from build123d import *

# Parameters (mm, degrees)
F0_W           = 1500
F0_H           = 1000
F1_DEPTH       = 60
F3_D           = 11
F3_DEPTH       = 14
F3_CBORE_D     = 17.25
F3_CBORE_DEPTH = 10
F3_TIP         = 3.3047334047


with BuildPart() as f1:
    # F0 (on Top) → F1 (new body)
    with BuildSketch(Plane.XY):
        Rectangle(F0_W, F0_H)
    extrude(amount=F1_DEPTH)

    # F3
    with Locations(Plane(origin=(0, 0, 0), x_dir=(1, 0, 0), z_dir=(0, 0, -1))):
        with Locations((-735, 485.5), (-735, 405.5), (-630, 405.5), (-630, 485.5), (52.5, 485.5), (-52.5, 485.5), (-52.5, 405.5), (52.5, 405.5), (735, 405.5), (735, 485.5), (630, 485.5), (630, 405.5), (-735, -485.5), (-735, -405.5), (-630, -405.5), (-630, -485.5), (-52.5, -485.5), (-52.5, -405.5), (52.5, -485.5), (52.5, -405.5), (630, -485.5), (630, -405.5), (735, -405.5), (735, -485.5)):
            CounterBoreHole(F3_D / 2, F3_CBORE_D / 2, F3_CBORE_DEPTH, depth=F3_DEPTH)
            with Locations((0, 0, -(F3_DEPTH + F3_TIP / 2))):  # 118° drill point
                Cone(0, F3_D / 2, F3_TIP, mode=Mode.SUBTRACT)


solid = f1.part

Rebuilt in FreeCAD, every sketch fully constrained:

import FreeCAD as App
import Part
import Sketcher

V = App.Vector
Q = App.Units.Quantity

doc = App.newDocument("Part")
params = doc.addObject("Spreadsheet::Sheet", "Params")
for row, (alias, value) in enumerate([
    ("sketch1_width", "1500 mm"),
    ("sketch1_height", "1000 mm"),
    ("pad1_length", "60 mm"),
    ("sketch2_diameter", "11 mm"),
    ("hole_diameter", "11 mm"),
    ("hole_depth", "14 mm"),
    ("hole_cbore_diameter", "17.25 mm"),
    ("hole_cbore_depth", "10 mm"),
], start=1):
    params.set(f"A{row}", alias)
    params.set(f"B{row}", "=" + value)
    params.setAlias(f"B{row}", alias)

body = doc.addObject("PartDesign::Body", "Body")

sketch1 = body.newObject("Sketcher::SketchObject", "Sketch")
sketch1.AttachmentSupport = (doc.getObject("XY_Plane"), [""])
sketch1.MapMode = "FlatFace"
sketch1.addGeometry(Part.LineSegment(V(-750, 500, 0), V(-750, -500, 0)), False)
sketch1.addGeometry(Part.LineSegment(V(-750, -500, 0), V(750, -500, 0)), False)
sketch1.addGeometry(Part.LineSegment(V(750, -500, 0), V(750, 500, 0)), False)
sketch1.addGeometry(Part.LineSegment(V(750, 500, 0), V(-750, 500, 0)), False)
sketch1.addConstraint(Sketcher.Constraint("Coincident", 0, 2, 1, 1))
sketch1.addConstraint(Sketcher.Constraint("Coincident", 1, 2, 2, 1))
sketch1.addConstraint(Sketcher.Constraint("Coincident", 2, 2, 3, 1))
sketch1.addConstraint(Sketcher.Constraint("Coincident", 3, 2, 0, 1))
sketch1.addConstraint(Sketcher.Constraint("Vertical", 0))
sketch1.addConstraint(Sketcher.Constraint("Horizontal", 1))
sketch1.addConstraint(Sketcher.Constraint("Vertical", 2))
sketch1.addConstraint(Sketcher.Constraint("Horizontal", 3))
sketch1.addConstraint(Sketcher.Constraint("Symmetric", 0, 2, 2, 2, -1, 1))
sketch1.addConstraint(Sketcher.Constraint("DistanceX", 1, 1, 1, 2, Q("1500 mm")))
sketch1.addConstraint(Sketcher.Constraint("DistanceY", 0, 2, 0, 1, Q("1000 mm")))
sketch1.setExpression("Constraints[9]", "Params.sketch1_width")
sketch1.setExpression("Constraints[10]", "Params.sketch1_height")
pad1 = body.newObject("PartDesign::Pad", "Pad")
pad1.Profile = sketch1
pad1.setExpression("Length", "Params.pad1_length")

sketch2 = body.newObject("Sketcher::SketchObject", "Sketch001")
sketch2.AttachmentSupport = (doc.getObject("XY_Plane"), [""])
sketch2.MapMode = "FlatFace"
sketch2.addGeometry(Part.Circle(V(-735, -485.5, 0), V(0, 0, 1), 5.5), False)
sketch2.addGeometry(Part.Circle(V(-735, -405.5, 0), V(0, 0, 1), 5.5), False)
sketch2.addGeometry(Part.Circle(V(-630, -405.5, 0), V(0, 0, 1), 5.5), False)
sketch2.addGeometry(Part.Circle(V(-630, -485.5, 0), V(0, 0, 1), 5.5), False)
sketch2.addGeometry(Part.Circle(V(52.5, -485.5, 0), V(0, 0, 1), 5.5), False)
sketch2.addGeometry(Part.Circle(V(-52.5, -485.5, 0), V(0, 0, 1), 5.5), False)
sketch2.addGeometry(Part.Circle(V(-52.5, -405.5, 0), V(0, 0, 1), 5.5), False)
sketch2.addGeometry(Part.Circle(V(52.5, -405.5, 0), V(0, 0, 1), 5.5), False)
sketch2.addGeometry(Part.Circle(V(735, -405.5, 0), V(0, 0, 1), 5.5), False)
sketch2.addGeometry(Part.Circle(V(735, -485.5, 0), V(0, 0, 1), 5.5), False)
sketch2.addGeometry(Part.Circle(V(630, -485.5, 0), V(0, 0, 1), 5.5), False)
sketch2.addGeometry(Part.Circle(V(630, -405.5, 0), V(0, 0, 1), 5.5), False)
sketch2.addGeometry(Part.Circle(V(-735, 485.5, 0), V(0, 0, 1), 5.5), False)
sketch2.addGeometry(Part.Circle(V(-735, 405.5, 0), V(0, 0, 1), 5.5), False)
sketch2.addGeometry(Part.Circle(V(-630, 405.5, 0), V(0, 0, 1), 5.5), False)
sketch2.addGeometry(Part.Circle(V(-630, 485.5, 0), V(0, 0, 1), 5.5), False)
sketch2.addGeometry(Part.Circle(V(-52.5, 485.5, 0), V(0, 0, 1), 5.5), False)
sketch2.addGeometry(Part.Circle(V(-52.5, 405.5, 0), V(0, 0, 1), 5.5), False)
sketch2.addGeometry(Part.Circle(V(52.5, 485.5, 0), V(0, 0, 1), 5.5), False)
sketch2.addGeometry(Part.Circle(V(52.5, 405.5, 0), V(0, 0, 1), 5.5), False)
sketch2.addGeometry(Part.Circle(V(630, 485.5, 0), V(0, 0, 1), 5.5), False)
sketch2.addGeometry(Part.Circle(V(630, 405.5, 0), V(0, 0, 1), 5.5), False)
sketch2.addGeometry(Part.Circle(V(735, 405.5, 0), V(0, 0, 1), 5.5), False)
sketch2.addGeometry(Part.Circle(V(735, 485.5, 0), V(0, 0, 1), 5.5), False)
sketch2.addConstraint(Sketcher.Constraint("Equal", 0, 1))
sketch2.addConstraint(Sketcher.Constraint("Equal", 1, 2))
sketch2.addConstraint(Sketcher.Constraint("Equal", 2, 3))
sketch2.addConstraint(Sketcher.Constraint("Equal", 3, 4))
sketch2.addConstraint(Sketcher.Constraint("Equal", 4, 5))
sketch2.addConstraint(Sketcher.Constraint("Equal", 5, 6))
sketch2.addConstraint(Sketcher.Constraint("Equal", 6, 7))
sketch2.addConstraint(Sketcher.Constraint("Equal", 7, 8))
sketch2.addConstraint(Sketcher.Constraint("Equal", 8, 9))
sketch2.addConstraint(Sketcher.Constraint("Equal", 9, 10))
sketch2.addConstraint(Sketcher.Constraint("Equal", 10, 11))
sketch2.addConstraint(Sketcher.Constraint("Equal", 11, 12))
sketch2.addConstraint(Sketcher.Constraint("Equal", 12, 13))
sketch2.addConstraint(Sketcher.Constraint("Equal", 13, 14))
sketch2.addConstraint(Sketcher.Constraint("Equal", 14, 15))
sketch2.addConstraint(Sketcher.Constraint("Equal", 15, 16))
sketch2.addConstraint(Sketcher.Constraint("Equal", 16, 17))
sketch2.addConstraint(Sketcher.Constraint("Equal", 17, 18))
sketch2.addConstraint(Sketcher.Constraint("Equal", 18, 19))
sketch2.addConstraint(Sketcher.Constraint("Equal", 19, 20))
sketch2.addConstraint(Sketcher.Constraint("Equal", 20, 21))
sketch2.addConstraint(Sketcher.Constraint("Equal", 21, 22))
sketch2.addConstraint(Sketcher.Constraint("Equal", 22, 23))
sketch2.addConstraint(Sketcher.Constraint("Symmetric", 9, 3, 12, 3, -1, 1))
sketch2.addConstraint(Sketcher.Constraint("Symmetric", 8, 3, 13, 3, -1, 1))
sketch2.addConstraint(Sketcher.Constraint("Symmetric", 11, 3, 14, 3, -1, 1))
sketch2.addConstraint(Sketcher.Constraint("Symmetric", 10, 3, 15, 3, -1, 1))
sketch2.addConstraint(Sketcher.Constraint("Symmetric", 4, 3, 16, 3, -1, 1))
sketch2.addConstraint(Sketcher.Constraint("Symmetric", 7, 3, 17, 3, -1, 1))
sketch2.addConstraint(Sketcher.Constraint("Symmetric", 5, 3, 18, 3, -1, 1))
sketch2.addConstraint(Sketcher.Constraint("Symmetric", 6, 3, 19, 3, -1, 1))
sketch2.addConstraint(Sketcher.Constraint("Symmetric", 3, 3, 20, 3, -1, 1))
sketch2.addConstraint(Sketcher.Constraint("Symmetric", 2, 3, 21, 3, -1, 1))
sketch2.addConstraint(Sketcher.Constraint("Symmetric", 1, 3, 22, 3, -1, 1))
sketch2.addConstraint(Sketcher.Constraint("Symmetric", 0, 3, 23, 3, -1, 1))
sketch2.addConstraint(Sketcher.Constraint("Symmetric", 4, 3, 5, 3, -2))
sketch2.addConstraint(Sketcher.Constraint("Symmetric", 6, 3, 7, 3, -2))
sketch2.addConstraint(Sketcher.Constraint("Symmetric", 1, 3, 8, 3, -2))
sketch2.addConstraint(Sketcher.Constraint("Symmetric", 0, 3, 9, 3, -2))
sketch2.addConstraint(Sketcher.Constraint("Symmetric", 3, 3, 10, 3, -2))
sketch2.addConstraint(Sketcher.Constraint("Symmetric", 2, 3, 11, 3, -2))
sketch2.addConstraint(Sketcher.Constraint("Horizontal", 1, 3, 2, 3))
sketch2.addConstraint(Sketcher.Constraint("Horizontal", 0, 3, 3, 3))
sketch2.addConstraint(Sketcher.Constraint("Horizontal", 3, 3, 4, 3))
sketch2.addConstraint(Sketcher.Constraint("Horizontal", 2, 3, 6, 3))
sketch2.addConstraint(Sketcher.Constraint("Vertical", 0, 3, 1, 3))
sketch2.addConstraint(Sketcher.Constraint("Vertical", 2, 3, 3, 3))
sketch2.addConstraint(Sketcher.Constraint("Vertical", 5, 3, 6, 3))
sketch2.addConstraint(Sketcher.Constraint("Diameter", 0, Q("11 mm")))
sketch2.addConstraint(Sketcher.Constraint("DistanceX", 0, 3, -1, 1, Q("735 mm")))
sketch2.addConstraint(Sketcher.Constraint("DistanceX", 2, 3, -1, 1, Q("630 mm")))
sketch2.addConstraint(Sketcher.Constraint("DistanceY", 0, 3, 1, 3, Q("80 mm")))
sketch2.addConstraint(Sketcher.Constraint("DistanceX", 5, 3, 4, 3, Q("105 mm")))
sketch2.addConstraint(Sketcher.Constraint("DistanceY", 1, 3, 12, 3, Q("891 mm")))
sketch2.setExpression("Constraints[48]", "Params.sketch2_diameter")
doc.recompute()
hole = body.newObject("PartDesign::Hole", "Hole")
hole.Profile = sketch2
hole.ThreadType = "None"
hole.setExpression("Diameter", "Params.hole_diameter")
hole.DepthType = "Dimension"
hole.setExpression("Depth", "Params.hole_depth")
hole.DrillPoint = "Angled"
hole.DrillPointAngle = 118
hole.HoleCutType = "Counterbore"
hole.setExpression("HoleCutDiameter", "Params.hole_cbore_diameter")
hole.setExpression("HoleCutDepth", "Params.hole_cbore_depth")
hole.Reversed = True

doc.recompute()
